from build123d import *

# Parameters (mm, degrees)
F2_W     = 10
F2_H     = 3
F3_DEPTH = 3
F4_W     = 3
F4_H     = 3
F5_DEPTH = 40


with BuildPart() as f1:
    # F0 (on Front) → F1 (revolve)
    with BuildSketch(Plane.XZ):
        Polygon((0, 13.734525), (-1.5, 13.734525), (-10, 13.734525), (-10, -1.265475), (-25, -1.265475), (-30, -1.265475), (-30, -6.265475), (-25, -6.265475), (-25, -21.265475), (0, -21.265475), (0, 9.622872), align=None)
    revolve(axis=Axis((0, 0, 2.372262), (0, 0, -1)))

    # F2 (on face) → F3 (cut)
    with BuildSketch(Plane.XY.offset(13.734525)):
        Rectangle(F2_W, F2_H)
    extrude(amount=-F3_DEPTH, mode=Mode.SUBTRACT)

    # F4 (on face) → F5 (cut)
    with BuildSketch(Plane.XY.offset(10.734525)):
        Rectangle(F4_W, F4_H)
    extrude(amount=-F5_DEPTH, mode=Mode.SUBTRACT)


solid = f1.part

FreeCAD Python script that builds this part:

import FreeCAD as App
import Part
import Sketcher
from FreeCAD import Vector
Q = App.Units.Quantity


def add_polygon(sketch, points):
    """Adds a closed chain of lines whose ends are joined by coincident constraints."""
    first, n = sketch.GeometryCount, len(points)
    for a, b in zip(points, points[1:] + points[:1]):
        sketch.addGeometry(Part.LineSegment(App.Vector(*a, 0), App.Vector(*b, 0)), False)
    for i in range(n):
        sketch.addConstraint(Sketcher.Constraint("Coincident", first + i, 2, first + (i + 1) % n, 1))

doc = App.newDocument("Part")
body = doc.addObject("PartDesign::Body", "Body")

# Sketch on XZ plane
sketch1 = doc.addObject("Sketcher::SketchObject", "Sketch")
body.addObject(sketch1)
sketch1.AttachmentSupport = (doc.XZ_Plane, [""])
sketch1.MapMode = "FlatFace"
add_polygon(sketch1, [(0, 14), (-10, 14), (-10, -1), (-30, -1), (-30, -6), (-25, -6), (-25, -21), (0, -21)])  # lines 0-7
sketch1.addConstraint([
    Sketcher.Constraint("Horizontal", 0),
    Sketcher.Constraint("Vertical", 1),
    Sketcher.Constraint("Horizontal", 2),
    Sketcher.Constraint("Vertical", 3),
    Sketcher.Constraint("Horizontal", 4),
    Sketcher.Constraint("Vertical", 5),
    Sketcher.Constraint("Horizontal", 6),
    Sketcher.Constraint("Vertical", 7),
    Sketcher.Constraint("PointOnObject", 6, 2, -2),
    Sketcher.Constraint("Equal", 4, 3),
    Sketcher.Constraint("Equal", 1, 5),
    Sketcher.Constraint("DistanceX", 0, 2, 0, 1, Q("10 mm")),
    Sketcher.Constraint("DistanceX", 2, 2, 2, 1, Q("20 mm")),
    Sketcher.Constraint("DistanceX", 4, 1, 4, 2, Q("5 mm")),
    Sketcher.Constraint("DistanceY", 1, 2, 1, 1, Q("15 mm")),
    Sketcher.Constraint("DistanceY", -1, 1, 0, 2, Q("13.734525 mm")),
])
revolution = doc.addObject("PartDesign::Revolution", "Revolution")
body.addObject(revolution)
revolution.Profile = sketch1
revolution.ReferenceAxis = (sketch1, ["V_Axis"])
revolution.Angle = 360

# Sketch on XY plane
sketch2 = doc.addObject("Sketcher::SketchObject", "Sketch001")
body.addObject(sketch2)
sketch2.AttachmentSupport = (doc.XY_Plane, [""])
sketch2.MapMode = "FlatFace"
sketch2.AttachmentOffset = App.Placement(Vector(0, 0, 13.734525), App.Rotation())
add_polygon(sketch2, [(-5, 1.5), (-5, -1.5), (5, -1.5), (5, 1.5)])  # lines 0-3
sketch2.addConstraint([
    Sketcher.Constraint("Vertical", 0),
    Sketcher.Constraint("Horizontal", 1),
    Sketcher.Constraint("Vertical", 2),
    Sketcher.Constraint("Horizontal", 3),
    Sketcher.Constraint("Symmetric", 0, 2, 2, 2, -1, 1),
    Sketcher.Constraint("DistanceX", 1, 1, 1, 2, Q("10 mm")),
    Sketcher.Constraint("DistanceY", 0, 2, 0, 1, Q("3 mm")),
])
pocket1 = doc.addObject("PartDesign::Pocket", "Pocket")
body.addObject(pocket1)
pocket1.Profile = sketch2
pocket1.Length = 3

# Sketch on XY plane
sketch3 = doc.addObject("Sketcher::SketchObject", "Sketch002")
body.addObject(sketch3)
sketch3.AttachmentSupport = (doc.XY_Plane, [""])
sketch3.MapMode = "FlatFace"
sketch3.AttachmentOffset = App.Placement(Vector(0, 0, 10.734525), App.Rotation())
add_polygon(sketch3, [(-1.5, 1.5), (-1.5, -1.5), (1.5, -1.5), (1.5, 1.5)])  # lines 0-3
sketch3.addConstraint([
    Sketcher.Constraint("Vertical", 0),
    Sketcher.Constraint("Horizontal", 1),
    Sketcher.Constraint("Vertical", 2),
    Sketcher.Constraint("Horizontal", 3),
    Sketcher.Constraint("Symmetric", 0, 2, 2, 2, -1, 1),
    Sketcher.Constraint("Equal", 3, 0),
    Sketcher.Constraint("DistanceX", 1, 1, 1, 2, Q("3 mm")),
])
pocket2 = doc.addObject("PartDesign::Pocket", "Pocket001")
body.addObject(pocket2)
pocket2.Profile = sketch3
pocket2.Length = 40

doc.recompute()
